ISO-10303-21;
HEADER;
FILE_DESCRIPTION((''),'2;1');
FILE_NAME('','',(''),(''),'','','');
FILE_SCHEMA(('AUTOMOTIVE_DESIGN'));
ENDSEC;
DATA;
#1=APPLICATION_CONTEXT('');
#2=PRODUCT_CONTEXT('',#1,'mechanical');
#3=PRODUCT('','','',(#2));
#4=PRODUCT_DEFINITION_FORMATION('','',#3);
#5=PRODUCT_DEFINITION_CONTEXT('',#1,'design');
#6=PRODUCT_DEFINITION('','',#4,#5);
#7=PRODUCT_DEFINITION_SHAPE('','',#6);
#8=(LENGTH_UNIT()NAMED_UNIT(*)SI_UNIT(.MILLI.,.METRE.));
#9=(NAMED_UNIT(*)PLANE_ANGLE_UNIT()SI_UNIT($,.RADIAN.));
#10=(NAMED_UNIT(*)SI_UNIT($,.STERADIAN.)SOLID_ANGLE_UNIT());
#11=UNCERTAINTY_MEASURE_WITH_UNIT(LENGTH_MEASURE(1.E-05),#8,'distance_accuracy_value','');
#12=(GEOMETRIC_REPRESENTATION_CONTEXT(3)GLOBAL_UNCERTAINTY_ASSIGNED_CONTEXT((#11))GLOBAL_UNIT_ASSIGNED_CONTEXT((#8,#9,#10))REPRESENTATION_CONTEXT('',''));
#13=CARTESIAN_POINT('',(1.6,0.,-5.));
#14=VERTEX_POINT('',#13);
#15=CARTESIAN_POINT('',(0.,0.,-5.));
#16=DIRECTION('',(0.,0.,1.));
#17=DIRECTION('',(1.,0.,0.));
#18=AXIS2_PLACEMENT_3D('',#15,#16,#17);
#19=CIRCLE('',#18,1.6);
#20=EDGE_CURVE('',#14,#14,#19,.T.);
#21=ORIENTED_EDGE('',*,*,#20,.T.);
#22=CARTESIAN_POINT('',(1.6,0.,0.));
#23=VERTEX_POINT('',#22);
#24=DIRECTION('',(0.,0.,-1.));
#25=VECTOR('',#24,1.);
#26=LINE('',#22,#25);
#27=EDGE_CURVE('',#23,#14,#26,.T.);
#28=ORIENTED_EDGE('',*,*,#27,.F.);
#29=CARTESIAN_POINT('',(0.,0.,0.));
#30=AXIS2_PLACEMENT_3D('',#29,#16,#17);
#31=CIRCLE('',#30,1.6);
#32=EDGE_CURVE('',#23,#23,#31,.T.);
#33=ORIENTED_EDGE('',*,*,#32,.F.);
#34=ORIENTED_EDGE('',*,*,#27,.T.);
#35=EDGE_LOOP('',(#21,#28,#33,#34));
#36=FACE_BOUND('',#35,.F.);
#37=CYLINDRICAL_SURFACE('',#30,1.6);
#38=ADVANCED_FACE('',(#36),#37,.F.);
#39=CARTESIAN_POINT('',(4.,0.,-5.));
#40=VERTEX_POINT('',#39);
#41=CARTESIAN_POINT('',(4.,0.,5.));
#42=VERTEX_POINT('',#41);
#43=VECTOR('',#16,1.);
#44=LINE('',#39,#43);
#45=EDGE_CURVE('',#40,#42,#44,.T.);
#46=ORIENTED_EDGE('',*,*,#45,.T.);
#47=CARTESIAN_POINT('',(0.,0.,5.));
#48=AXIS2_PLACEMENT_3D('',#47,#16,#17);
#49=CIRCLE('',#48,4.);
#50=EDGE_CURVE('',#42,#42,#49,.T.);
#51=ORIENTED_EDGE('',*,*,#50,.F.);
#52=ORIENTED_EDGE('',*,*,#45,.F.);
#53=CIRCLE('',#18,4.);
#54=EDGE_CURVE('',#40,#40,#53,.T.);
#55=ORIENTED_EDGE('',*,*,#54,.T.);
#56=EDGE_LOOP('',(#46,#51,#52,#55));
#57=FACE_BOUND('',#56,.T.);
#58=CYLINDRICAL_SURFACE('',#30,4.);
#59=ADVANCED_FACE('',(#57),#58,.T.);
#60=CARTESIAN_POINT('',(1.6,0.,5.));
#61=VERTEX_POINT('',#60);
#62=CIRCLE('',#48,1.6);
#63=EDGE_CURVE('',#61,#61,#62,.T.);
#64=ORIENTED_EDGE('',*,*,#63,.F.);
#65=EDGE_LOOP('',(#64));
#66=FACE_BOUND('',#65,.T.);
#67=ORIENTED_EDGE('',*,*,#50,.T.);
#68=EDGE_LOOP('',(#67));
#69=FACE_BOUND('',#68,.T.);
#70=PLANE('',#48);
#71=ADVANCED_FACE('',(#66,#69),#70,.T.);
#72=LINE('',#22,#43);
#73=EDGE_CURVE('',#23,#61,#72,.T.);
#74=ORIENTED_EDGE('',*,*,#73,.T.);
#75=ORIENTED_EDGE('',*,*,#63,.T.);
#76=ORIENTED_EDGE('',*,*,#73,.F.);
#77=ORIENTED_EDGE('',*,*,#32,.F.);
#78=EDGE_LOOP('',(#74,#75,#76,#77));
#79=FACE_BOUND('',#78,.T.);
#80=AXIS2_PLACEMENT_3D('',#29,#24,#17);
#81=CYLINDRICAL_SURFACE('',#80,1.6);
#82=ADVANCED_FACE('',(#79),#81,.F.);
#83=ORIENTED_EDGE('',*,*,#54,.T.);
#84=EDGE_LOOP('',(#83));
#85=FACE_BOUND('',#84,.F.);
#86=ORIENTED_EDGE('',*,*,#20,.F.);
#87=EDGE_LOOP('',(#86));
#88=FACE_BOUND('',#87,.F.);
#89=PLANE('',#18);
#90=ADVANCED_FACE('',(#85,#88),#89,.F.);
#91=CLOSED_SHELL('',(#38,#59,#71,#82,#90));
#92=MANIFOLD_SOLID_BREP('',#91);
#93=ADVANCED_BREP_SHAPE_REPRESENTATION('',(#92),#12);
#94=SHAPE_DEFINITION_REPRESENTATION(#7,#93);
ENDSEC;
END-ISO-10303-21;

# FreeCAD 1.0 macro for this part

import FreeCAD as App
import Part
import Sketcher
Q = App.Units.Quantity

doc = App.newDocument("Part")
params = doc.addObject("Spreadsheet::Sheet", "Params")
for row, (alias, value) in enumerate([
    ("sketch1_diameter", "8 mm"),
    ("sketch1_diameter2", "3.2 mm"),
    ("pad1_length", "5 mm"),
    ("pad1_length2", "5 mm"),
], start=1):
    params.set(f"A{row}", alias)
    params.set(f"B{row}", "=" + value)
    params.setAlias(f"B{row}", alias)

body = doc.addObject("PartDesign::Body", "Body")

# Sketch on XY plane
sketch1 = body.newObject("Sketcher::SketchObject", "Sketch")
sketch1.AttachmentSupport = (doc.getObject("XY_Plane"), [""])
sketch1.MapMode = "FlatFace"
sketch1.addGeometry([
    Part.Circle(App.Vector(0, 0, 0), App.Vector(0, 0, 1), 4),
    Part.Circle(App.Vector(0, 0, 0), App.Vector(0, 0, 1), 1.6),
], False)
sketch1.addConstraint([
    Sketcher.Constraint("Coincident", 0, 3, -1, 1),
    Sketcher.Constraint("Coincident", 1, 3, -1, 1),
    Sketcher.Constraint("Diameter", 0, Q("8 mm")),
    Sketcher.Constraint("Diameter", 1, Q("3.2 mm")),
])
sketch1.setExpression("Constraints[2]", "Params.sketch1_diameter")
sketch1.setExpression("Constraints[3]", "Params.sketch1_diameter2")
pad1 = body.newObject("PartDesign::Pad", "Pad")
pad1.Profile = sketch1
pad1.Type = "TwoLengths"
pad1.setExpression("Length", "Params.pad1_length")
pad1.setExpression("Length2", "Params.pad1_length2")

doc.recompute()
